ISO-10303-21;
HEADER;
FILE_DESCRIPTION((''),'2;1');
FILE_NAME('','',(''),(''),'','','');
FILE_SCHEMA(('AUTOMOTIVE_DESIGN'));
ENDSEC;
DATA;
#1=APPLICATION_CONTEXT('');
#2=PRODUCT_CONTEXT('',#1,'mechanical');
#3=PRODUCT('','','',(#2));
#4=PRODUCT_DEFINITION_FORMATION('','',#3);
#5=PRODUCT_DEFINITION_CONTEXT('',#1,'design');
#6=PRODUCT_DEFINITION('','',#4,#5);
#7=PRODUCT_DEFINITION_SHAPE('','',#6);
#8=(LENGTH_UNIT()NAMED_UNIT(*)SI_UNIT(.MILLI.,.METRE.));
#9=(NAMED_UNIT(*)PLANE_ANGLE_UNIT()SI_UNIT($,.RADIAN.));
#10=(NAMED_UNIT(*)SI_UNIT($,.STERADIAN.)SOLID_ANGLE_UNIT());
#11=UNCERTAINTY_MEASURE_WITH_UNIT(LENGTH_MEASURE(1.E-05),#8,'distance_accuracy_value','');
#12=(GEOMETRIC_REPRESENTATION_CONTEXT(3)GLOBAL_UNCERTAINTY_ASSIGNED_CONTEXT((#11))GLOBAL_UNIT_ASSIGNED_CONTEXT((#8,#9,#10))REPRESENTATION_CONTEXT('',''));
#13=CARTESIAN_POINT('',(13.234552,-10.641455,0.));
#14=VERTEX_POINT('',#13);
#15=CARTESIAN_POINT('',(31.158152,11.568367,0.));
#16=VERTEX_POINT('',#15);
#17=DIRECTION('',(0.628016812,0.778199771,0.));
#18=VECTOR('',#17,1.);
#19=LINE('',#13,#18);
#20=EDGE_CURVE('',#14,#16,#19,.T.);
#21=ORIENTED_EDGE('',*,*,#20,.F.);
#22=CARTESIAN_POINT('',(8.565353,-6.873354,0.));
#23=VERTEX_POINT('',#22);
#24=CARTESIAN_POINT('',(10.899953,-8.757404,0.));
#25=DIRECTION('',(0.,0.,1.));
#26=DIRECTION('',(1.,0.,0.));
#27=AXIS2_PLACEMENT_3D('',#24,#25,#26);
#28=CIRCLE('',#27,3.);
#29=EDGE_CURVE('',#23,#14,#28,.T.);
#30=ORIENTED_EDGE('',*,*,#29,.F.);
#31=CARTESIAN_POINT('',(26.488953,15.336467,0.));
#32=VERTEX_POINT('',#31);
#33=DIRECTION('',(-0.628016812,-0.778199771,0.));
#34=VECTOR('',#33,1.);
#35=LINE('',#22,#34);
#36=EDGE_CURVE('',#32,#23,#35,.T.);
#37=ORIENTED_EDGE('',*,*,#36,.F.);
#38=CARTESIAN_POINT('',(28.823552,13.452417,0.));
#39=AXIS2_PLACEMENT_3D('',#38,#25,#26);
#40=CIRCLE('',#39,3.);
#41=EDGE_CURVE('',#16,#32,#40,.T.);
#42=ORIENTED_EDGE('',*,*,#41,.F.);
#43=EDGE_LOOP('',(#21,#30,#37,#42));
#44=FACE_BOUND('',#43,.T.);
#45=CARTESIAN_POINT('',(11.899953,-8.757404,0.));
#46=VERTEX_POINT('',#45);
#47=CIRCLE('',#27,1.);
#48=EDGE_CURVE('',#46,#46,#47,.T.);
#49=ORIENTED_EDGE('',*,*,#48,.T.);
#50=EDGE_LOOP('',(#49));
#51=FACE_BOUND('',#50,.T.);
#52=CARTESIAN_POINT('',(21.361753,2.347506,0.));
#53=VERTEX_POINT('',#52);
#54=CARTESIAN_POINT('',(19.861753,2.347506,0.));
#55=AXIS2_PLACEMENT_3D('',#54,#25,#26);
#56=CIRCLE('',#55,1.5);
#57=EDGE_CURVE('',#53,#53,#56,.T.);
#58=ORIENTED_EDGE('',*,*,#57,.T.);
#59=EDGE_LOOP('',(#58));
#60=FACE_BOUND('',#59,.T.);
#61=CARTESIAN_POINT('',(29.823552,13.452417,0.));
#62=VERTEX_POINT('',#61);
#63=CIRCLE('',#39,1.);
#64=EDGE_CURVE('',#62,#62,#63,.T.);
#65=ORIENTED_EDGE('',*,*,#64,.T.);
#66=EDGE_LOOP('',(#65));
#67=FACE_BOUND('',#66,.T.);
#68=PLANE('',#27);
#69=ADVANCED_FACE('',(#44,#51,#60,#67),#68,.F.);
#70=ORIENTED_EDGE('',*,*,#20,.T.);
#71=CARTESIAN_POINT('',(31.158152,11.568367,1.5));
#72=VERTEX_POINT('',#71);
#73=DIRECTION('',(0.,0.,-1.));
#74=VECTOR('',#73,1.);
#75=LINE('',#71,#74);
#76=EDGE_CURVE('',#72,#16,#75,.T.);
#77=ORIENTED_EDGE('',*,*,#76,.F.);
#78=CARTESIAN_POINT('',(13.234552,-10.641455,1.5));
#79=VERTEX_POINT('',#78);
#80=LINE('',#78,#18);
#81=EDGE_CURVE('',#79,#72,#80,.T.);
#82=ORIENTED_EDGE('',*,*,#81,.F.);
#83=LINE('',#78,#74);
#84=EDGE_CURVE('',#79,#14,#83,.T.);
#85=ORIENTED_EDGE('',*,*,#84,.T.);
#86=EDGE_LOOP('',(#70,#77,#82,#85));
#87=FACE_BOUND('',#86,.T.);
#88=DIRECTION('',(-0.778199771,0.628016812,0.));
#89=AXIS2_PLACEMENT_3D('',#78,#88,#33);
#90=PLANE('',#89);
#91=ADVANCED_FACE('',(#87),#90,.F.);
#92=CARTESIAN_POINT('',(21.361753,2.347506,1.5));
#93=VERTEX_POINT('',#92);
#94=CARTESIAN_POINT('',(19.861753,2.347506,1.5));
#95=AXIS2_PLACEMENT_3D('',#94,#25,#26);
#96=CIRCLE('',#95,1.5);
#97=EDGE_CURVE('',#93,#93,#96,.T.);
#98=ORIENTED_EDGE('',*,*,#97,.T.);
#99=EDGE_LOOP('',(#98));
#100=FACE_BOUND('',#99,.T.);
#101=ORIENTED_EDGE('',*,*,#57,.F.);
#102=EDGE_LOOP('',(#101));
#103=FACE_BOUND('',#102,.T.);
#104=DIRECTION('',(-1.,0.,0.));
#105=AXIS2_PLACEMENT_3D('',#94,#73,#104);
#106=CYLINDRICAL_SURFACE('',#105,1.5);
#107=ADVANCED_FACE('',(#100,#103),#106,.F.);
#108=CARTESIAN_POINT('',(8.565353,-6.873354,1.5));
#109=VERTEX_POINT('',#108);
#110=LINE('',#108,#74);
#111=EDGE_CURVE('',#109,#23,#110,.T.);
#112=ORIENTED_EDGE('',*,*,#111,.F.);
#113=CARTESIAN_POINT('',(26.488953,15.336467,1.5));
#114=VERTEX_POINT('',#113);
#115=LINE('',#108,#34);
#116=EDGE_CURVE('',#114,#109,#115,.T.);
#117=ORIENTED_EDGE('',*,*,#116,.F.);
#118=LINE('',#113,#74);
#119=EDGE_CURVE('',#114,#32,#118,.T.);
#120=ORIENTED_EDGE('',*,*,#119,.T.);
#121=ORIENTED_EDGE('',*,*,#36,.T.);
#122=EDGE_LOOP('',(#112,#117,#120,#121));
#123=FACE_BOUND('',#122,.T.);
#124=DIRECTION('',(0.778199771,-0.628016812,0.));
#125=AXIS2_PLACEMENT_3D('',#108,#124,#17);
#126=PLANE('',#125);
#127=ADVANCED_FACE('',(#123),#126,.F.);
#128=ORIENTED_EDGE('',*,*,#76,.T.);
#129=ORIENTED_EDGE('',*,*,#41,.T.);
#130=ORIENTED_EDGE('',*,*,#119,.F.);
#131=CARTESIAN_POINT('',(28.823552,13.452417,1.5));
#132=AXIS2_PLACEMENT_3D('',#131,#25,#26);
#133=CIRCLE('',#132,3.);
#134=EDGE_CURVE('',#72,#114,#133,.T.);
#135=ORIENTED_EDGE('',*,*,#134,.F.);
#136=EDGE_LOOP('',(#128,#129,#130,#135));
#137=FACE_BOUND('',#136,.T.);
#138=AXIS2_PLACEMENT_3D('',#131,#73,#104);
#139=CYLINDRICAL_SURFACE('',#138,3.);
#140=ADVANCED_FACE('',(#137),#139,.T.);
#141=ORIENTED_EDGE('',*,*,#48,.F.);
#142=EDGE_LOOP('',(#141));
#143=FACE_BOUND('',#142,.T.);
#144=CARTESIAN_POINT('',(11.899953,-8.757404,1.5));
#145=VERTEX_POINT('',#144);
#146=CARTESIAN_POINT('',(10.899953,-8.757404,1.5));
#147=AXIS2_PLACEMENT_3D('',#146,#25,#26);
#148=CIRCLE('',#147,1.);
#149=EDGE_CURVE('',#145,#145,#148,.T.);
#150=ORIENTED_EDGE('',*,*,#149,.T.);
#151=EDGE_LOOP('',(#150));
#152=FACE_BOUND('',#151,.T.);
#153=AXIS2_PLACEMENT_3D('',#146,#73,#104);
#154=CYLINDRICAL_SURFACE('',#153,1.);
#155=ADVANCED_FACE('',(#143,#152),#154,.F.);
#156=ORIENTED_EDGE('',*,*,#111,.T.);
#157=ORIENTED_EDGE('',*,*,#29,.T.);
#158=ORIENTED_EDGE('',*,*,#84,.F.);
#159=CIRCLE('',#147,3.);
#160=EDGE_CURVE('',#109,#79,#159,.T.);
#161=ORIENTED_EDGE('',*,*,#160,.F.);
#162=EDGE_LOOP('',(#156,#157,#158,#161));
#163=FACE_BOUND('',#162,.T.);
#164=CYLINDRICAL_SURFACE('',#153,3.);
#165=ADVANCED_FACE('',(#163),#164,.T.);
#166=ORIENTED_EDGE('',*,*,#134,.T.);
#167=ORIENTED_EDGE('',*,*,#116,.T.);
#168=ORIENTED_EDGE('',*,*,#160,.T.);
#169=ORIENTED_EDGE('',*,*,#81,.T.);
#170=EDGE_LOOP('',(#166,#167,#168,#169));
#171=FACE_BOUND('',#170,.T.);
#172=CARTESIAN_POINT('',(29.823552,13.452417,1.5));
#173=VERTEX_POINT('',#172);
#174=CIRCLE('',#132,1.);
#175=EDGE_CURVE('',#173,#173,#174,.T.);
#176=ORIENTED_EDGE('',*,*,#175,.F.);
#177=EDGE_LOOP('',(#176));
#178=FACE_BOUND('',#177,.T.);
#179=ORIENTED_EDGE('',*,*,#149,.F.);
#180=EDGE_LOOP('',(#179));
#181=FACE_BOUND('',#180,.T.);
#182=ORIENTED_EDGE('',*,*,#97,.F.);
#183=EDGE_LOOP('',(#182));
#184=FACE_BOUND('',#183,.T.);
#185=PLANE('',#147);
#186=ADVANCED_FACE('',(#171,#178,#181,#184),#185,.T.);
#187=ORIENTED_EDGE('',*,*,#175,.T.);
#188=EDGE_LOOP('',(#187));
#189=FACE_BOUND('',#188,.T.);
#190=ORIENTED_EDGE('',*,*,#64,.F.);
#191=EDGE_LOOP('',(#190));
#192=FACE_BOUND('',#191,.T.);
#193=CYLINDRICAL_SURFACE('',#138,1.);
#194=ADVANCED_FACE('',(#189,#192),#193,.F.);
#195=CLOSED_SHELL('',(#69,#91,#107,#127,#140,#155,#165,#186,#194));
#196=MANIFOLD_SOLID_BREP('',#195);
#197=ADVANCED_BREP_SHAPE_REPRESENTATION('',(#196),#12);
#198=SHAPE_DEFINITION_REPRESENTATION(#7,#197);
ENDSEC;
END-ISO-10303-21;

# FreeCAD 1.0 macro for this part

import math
import FreeCAD as App
import Part
import Sketcher

V = App.Vector
Q = App.Units.Quantity

doc = App.newDocument("Part")
body = doc.addObject("PartDesign::Body", "Body")

# Sketch on XY plane
sketch1 = body.newObject("Sketcher::SketchObject", "Sketch")
sketch1.AttachmentSupport = (doc.getObject("XY_Plane"), [""])
sketch1.MapMode = "FlatFace"
sketch1.addGeometry([
    Part.LineSegment(V(26.5, 15.3, 0), V(8.6, -6.9, 0)),  # 0
    Part.ArcOfCircle(Part.Circle(V(10.9, -8.8, 0), V(0, 0, 1), 3), math.radians(141), math.radians(321)),  # 1
    Part.LineSegment(V(13.2, -10.6, 0), V(31.2, 11.6, 0)),  # 2
    Part.ArcOfCircle(Part.Circle(V(28.8, 13.5, 0), V(0, 0, 1), 3), math.radians(-39), math.radians(141)),  # 3
    Part.Circle(V(10.9, -8.8, 0), V(0, 0, 1), 1),  # 4
    Part.Circle(V(19.9, 2.3, 0), V(0, 0, 1), 1.5),  # 5
    Part.Circle(V(28.8, 13.5, 0), V(0, 0, 1), 1),  # 6
], False)
sketch1.addConstraint([
    Sketcher.Constraint("Tangent", 0, 2, 1, 1),
    Sketcher.Constraint("Tangent", 1, 2, 2, 1),
    Sketcher.Constraint("Tangent", 2, 2, 3, 1),
    Sketcher.Constraint("Tangent", 3, 2, 0, 1),
    Sketcher.Constraint("Coincident", 4, 3, 1, 3),
    Sketcher.Constraint("Coincident", 6, 3, 3, 3),
    Sketcher.Constraint("Equal", 1, 3),
    Sketcher.Constraint("Equal", 4, 6),
    Sketcher.Constraint("Diameter", 4, Q("2 mm")),
    Sketcher.Constraint("Diameter", 5, Q("3 mm")),
    Sketcher.Constraint("Radius", 1, Q("3 mm")),
    Sketcher.Constraint("Distance", 0, Q("28.54 mm")),
    Sketcher.Constraint("DistanceX", 1, 2, 3, 3, Q("15.589001 mm")),
    Sketcher.Constraint("DistanceX", 1, 3, 5, 3, Q("8.9618 mm")),
    Sketcher.Constraint("DistanceX", -1, 1, 1, 2, Q("13.234552 mm")),
    Sketcher.Constraint("DistanceY", 1, 3, 5, 3, Q("11.104911 mm")),
    Sketcher.Constraint("DistanceY", 1, 3, -1, 1, Q("8.757404 mm")),
])
pad1 = body.newObject("PartDesign::Pad", "Pad")
pad1.Profile = sketch1
pad1.Length = 1.5

doc.recompute()
